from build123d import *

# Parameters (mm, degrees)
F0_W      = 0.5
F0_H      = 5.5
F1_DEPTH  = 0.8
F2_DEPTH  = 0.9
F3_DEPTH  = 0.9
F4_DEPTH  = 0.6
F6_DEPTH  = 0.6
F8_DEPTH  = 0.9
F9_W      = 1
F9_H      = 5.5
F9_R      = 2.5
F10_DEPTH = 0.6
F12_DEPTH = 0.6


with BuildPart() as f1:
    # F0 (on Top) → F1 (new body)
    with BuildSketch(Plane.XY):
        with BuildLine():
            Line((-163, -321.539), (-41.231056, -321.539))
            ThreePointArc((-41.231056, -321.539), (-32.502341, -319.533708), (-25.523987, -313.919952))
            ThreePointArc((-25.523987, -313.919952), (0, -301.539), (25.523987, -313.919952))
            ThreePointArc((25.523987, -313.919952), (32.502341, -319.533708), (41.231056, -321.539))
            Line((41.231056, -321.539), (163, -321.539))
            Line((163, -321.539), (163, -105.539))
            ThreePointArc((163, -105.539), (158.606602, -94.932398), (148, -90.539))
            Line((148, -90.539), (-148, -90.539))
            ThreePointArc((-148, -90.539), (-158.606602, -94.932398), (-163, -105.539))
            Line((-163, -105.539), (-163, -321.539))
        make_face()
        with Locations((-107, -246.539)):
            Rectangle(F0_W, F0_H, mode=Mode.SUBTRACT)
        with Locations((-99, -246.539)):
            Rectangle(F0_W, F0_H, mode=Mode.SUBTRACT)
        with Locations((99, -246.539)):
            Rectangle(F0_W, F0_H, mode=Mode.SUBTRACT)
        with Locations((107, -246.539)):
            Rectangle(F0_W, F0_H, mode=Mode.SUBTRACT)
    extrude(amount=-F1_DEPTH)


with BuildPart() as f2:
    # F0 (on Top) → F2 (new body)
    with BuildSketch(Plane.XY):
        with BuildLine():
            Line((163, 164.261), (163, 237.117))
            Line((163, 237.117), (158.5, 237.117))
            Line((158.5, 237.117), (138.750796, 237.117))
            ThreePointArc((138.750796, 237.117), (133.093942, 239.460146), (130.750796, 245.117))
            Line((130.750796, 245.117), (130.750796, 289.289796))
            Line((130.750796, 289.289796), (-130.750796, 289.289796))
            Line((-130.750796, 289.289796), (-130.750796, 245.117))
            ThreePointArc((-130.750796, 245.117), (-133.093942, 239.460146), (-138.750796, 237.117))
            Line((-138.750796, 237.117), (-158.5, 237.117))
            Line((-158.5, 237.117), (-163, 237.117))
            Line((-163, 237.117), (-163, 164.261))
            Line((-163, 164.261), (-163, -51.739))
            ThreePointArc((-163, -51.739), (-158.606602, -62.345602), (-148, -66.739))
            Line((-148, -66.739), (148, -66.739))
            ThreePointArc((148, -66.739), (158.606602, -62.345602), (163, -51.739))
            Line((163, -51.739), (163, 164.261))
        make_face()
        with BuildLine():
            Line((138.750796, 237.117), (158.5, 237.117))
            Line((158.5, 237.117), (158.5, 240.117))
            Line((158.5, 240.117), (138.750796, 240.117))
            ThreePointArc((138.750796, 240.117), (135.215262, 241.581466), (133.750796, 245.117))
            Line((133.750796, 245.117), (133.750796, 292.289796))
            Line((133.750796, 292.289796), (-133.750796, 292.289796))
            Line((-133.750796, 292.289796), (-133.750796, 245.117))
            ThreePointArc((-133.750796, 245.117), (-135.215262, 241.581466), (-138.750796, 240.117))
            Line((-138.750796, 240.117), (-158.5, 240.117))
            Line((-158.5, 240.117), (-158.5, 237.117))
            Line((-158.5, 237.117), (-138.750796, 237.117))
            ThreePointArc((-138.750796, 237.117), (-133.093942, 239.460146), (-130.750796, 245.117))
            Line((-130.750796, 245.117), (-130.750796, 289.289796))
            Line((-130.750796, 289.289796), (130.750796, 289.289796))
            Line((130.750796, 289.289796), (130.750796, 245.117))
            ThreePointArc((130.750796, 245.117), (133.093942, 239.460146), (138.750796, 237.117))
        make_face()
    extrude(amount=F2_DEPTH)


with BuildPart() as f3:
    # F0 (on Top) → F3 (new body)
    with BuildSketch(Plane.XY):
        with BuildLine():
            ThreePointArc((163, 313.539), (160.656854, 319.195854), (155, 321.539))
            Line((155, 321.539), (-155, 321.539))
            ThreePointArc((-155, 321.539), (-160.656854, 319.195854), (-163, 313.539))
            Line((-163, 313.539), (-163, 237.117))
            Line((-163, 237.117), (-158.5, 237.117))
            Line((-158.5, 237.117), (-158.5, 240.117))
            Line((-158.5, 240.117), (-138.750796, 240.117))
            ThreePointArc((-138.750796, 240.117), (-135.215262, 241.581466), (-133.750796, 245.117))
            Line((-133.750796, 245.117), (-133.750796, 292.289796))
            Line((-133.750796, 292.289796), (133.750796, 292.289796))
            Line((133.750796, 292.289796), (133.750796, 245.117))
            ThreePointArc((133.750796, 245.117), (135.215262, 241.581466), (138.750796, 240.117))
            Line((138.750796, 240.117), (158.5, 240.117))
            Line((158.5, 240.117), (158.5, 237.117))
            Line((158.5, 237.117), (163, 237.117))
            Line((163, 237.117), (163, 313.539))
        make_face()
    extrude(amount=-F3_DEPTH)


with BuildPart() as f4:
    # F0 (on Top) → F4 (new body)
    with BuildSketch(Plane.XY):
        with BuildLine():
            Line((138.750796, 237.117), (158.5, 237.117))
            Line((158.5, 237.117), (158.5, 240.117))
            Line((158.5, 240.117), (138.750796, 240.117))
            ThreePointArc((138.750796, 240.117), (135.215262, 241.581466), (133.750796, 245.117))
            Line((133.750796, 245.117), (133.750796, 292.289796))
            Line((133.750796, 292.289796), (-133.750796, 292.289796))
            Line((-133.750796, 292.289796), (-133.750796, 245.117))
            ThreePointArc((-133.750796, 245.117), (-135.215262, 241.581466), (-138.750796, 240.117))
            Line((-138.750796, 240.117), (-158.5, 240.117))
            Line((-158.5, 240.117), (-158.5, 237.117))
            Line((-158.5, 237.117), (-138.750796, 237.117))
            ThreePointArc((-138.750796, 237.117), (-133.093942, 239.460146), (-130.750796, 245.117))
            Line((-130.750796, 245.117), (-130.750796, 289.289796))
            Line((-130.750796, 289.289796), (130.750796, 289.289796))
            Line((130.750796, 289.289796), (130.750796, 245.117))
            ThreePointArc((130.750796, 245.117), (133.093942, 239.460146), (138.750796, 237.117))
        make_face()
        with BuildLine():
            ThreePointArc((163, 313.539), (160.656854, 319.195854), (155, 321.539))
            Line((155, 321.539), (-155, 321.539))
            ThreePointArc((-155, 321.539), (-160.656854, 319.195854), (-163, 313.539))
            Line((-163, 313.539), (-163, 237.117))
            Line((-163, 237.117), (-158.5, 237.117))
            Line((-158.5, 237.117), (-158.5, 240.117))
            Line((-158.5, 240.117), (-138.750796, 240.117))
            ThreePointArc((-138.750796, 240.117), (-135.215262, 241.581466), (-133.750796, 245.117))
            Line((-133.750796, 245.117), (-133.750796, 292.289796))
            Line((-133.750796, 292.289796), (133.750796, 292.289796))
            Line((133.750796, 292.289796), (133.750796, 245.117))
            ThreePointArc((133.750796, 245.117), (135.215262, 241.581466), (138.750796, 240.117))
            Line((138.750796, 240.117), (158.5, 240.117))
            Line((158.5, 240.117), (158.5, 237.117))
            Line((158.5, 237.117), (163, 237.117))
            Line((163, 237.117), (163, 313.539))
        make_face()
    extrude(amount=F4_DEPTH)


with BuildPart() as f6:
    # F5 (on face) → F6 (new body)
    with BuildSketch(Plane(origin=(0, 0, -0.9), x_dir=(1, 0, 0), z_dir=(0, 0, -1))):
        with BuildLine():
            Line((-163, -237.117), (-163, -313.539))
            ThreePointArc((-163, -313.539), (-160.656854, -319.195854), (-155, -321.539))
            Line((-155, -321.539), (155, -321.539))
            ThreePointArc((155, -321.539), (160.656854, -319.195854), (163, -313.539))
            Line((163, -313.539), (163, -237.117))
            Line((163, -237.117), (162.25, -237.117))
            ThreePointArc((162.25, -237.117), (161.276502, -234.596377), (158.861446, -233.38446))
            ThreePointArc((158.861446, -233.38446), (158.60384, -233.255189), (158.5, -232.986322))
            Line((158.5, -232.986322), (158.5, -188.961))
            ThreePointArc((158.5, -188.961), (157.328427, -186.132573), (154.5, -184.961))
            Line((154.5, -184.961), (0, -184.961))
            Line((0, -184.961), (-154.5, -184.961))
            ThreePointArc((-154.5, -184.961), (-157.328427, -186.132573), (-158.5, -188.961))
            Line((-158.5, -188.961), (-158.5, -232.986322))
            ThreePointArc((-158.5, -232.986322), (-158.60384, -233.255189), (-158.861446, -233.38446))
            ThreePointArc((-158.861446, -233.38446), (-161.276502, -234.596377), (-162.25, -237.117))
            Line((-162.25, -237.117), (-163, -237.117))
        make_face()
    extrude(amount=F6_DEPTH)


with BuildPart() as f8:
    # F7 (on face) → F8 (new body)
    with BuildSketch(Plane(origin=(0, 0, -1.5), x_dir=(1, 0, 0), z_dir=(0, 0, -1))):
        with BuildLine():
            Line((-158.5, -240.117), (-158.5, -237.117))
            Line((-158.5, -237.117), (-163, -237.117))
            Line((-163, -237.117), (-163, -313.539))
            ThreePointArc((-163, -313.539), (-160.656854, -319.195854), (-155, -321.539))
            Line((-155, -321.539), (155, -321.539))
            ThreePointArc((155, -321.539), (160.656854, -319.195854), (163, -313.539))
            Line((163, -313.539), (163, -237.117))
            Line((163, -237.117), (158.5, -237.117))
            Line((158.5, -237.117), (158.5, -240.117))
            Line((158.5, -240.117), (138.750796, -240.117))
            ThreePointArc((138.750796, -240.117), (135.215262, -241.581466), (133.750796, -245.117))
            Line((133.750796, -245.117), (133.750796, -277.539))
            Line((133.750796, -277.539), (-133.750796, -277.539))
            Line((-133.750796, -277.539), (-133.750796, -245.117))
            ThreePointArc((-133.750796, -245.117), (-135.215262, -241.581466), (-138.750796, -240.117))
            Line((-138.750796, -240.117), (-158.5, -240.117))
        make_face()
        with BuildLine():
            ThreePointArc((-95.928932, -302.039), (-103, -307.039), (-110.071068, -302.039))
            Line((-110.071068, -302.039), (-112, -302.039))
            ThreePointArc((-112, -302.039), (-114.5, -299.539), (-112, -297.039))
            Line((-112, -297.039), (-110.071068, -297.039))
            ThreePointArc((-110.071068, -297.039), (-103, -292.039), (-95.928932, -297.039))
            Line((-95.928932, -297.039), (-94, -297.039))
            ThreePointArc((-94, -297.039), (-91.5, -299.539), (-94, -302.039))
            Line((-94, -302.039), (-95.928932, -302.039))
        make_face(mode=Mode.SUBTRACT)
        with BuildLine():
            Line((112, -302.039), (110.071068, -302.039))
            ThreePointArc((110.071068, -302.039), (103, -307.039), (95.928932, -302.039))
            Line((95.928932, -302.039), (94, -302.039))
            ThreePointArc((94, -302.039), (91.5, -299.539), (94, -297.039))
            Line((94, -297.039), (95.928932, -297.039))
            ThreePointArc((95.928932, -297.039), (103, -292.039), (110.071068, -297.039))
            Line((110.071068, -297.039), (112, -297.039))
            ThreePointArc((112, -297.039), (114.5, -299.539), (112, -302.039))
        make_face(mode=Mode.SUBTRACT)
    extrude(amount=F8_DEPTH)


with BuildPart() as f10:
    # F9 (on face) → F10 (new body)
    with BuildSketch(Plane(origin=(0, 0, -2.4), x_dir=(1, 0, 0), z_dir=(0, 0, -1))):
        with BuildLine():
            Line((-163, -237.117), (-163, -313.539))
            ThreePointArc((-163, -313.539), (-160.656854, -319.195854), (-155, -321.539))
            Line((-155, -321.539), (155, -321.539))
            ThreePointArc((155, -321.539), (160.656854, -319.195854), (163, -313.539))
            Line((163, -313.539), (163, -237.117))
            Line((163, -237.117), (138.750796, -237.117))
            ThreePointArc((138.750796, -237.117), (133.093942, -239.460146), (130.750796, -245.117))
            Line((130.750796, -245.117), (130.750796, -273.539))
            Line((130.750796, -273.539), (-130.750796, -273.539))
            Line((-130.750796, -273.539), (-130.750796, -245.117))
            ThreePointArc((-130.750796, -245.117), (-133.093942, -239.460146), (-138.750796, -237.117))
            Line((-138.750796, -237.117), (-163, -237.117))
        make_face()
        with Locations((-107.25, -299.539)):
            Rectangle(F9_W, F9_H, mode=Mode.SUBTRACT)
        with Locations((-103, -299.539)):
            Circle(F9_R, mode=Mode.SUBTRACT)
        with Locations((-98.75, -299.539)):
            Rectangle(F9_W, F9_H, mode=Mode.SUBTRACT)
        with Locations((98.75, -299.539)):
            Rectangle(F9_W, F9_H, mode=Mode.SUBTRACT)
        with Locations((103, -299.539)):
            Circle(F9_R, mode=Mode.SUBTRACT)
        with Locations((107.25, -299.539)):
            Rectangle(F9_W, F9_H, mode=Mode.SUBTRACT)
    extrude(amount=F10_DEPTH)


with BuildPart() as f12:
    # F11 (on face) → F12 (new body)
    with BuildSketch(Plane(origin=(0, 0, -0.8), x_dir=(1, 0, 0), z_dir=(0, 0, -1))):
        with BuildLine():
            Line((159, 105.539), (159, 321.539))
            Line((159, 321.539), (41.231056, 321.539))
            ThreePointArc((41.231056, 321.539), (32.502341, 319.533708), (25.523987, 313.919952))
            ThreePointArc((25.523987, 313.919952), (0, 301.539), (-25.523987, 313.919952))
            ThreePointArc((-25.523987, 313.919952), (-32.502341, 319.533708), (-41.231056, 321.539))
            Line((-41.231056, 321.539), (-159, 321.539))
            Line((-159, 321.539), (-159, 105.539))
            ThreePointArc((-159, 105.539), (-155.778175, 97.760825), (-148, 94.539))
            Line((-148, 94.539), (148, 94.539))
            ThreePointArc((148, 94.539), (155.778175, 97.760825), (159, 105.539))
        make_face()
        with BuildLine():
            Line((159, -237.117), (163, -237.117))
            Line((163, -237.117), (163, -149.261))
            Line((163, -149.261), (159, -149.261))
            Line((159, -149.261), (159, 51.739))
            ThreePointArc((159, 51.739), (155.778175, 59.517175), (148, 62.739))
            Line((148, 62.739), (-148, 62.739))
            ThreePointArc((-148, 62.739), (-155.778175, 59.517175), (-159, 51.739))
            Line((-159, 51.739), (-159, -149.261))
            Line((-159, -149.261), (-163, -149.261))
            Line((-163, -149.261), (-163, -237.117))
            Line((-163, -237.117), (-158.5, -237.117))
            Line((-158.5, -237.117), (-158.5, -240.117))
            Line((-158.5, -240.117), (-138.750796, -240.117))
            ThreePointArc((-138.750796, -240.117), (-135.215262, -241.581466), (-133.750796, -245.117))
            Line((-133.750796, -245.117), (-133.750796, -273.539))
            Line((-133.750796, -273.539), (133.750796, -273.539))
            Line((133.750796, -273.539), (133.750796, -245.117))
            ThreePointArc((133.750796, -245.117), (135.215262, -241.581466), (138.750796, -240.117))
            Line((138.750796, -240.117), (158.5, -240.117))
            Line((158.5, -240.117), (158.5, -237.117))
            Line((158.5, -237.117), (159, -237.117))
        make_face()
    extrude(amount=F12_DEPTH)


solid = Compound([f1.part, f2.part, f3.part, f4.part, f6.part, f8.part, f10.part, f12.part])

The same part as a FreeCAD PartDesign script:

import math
import FreeCAD as App
import Part
import Sketcher
from FreeCAD import Vector


def add_polygon(sketch, points):
    """Adds a closed chain of lines whose ends are joined by coincident constraints."""
    first, n = sketch.GeometryCount, len(points)
    for a, b in zip(points, points[1:] + points[:1]):
        sketch.addGeometry(Part.LineSegment(App.Vector(*a, 0), App.Vector(*b, 0)), False)
    for i in range(n):
        sketch.addConstraint(Sketcher.Constraint("Coincident", first + i, 2, first + (i + 1) % n, 1))

doc = App.newDocument("Part")
body = doc.addObject("PartDesign::Body", "Body")

sketch1 = body.newObject("Sketcher::SketchObject", "Sketch")
sketch1.AttachmentSupport = (doc.getObject("XY_Plane"), [""])
sketch1.MapMode = "FlatFace"
sketch1.addGeometry(Part.LineSegment(Vector(-163, -321.5, 0), Vector(-41.2, -321.5, 0)), False)
sketch1.addGeometry(Part.ArcOfCircle(Part.Circle(Vector(-41.2, -301.5, 0), Vector(0, 0, 1), 20), math.radians(-90), math.radians(-38)), False)
sketch1.addGeometry(Part.ArcOfCircle(Part.Circle(Vector(0, -334, 0), Vector(0, 0, 1), 32.5), math.radians(38), math.radians(142)), False)
sketch1.addGeometry(Part.ArcOfCircle(Part.Circle(Vector(41.2, -301.5, 0), Vector(0, 0, 1), 20), math.radians(-142), math.radians(-90)), False)
sketch1.addGeometry(Part.LineSegment(Vector(41.2, -321.5, 0), Vector(163, -321.5, 0)), False)
sketch1.addGeometry(Part.LineSegment(Vector(163, -321.5, 0), Vector(163, -105.5, 0)), False)
sketch1.addGeometry(Part.ArcOfCircle(Part.Circle(Vector(148, -105.5, 0), Vector(0, 0, 1), 15), math.radians(0), math.radians(90)), False)
sketch1.addGeometry(Part.LineSegment(Vector(148, -90.5, 0), Vector(-148, -90.5, 0)), False)
sketch1.addGeometry(Part.ArcOfCircle(Part.Circle(Vector(-148, -105.5, 0), Vector(0, 0, 1), 15), math.radians(90), math.radians(180)), False)
sketch1.addGeometry(Part.LineSegment(Vector(-163, -105.5, 0), Vector(-163, -321.5, 0)), False)
add_polygon(sketch1, [(-106.8, -249.3), (-107.2, -249.3), (-107.2, -243.8), (-106.8, -243.8)])
add_polygon(sketch1, [(-98.8, -249.3), (-99.2, -249.3), (-99.2, -243.8), (-98.8, -243.8)])
add_polygon(sketch1, [(99.2, -249.3), (98.8, -249.3), (98.8, -243.8), (99.2, -243.8)])
add_polygon(sketch1, [(107.2, -249.3), (106.8, -249.3), (106.8, -243.8), (107.2, -243.8)])
sketch1.addConstraint([
    Sketcher.Constraint("Tangent", 0, 2, 1, 1),
    Sketcher.Constraint("Tangent", 1, 2, 2, 2),
    Sketcher.Constraint("Tangent", 2, 1, 3, 1),
    Sketcher.Constraint("Tangent", 3, 2, 4, 1),
    Sketcher.Constraint("Coincident", 4, 2, 5, 1),
    Sketcher.Constraint("Tangent", 5, 2, 6, 1),
    Sketcher.Constraint("Tangent", 6, 2, 7, 1),
    Sketcher.Constraint("Tangent", 7, 2, 8, 1),
    Sketcher.Constraint("Tangent", 8, 2, 9, 1),
    Sketcher.Constraint("Coincident", 9, 2, 0, 1),
    Sketcher.Constraint("Horizontal", 0),
    Sketcher.Constraint("Horizontal", 4),
    Sketcher.Constraint("Vertical", 5),
    Sketcher.Constraint("Horizontal", 7),
    Sketcher.Constraint("Vertical", 9),
    Sketcher.Constraint("Horizontal", 10),
    Sketcher.Constraint("Vertical", 11),
    Sketcher.Constraint("Horizontal", 12),
    Sketcher.Constraint("Vertical", 13),
    Sketcher.Constraint("Horizontal", 14),
    Sketcher.Constraint("Vertical", 15),
    Sketcher.Constraint("Horizontal", 16),
    Sketcher.Constraint("Vertical", 17),
    Sketcher.Constraint("Horizontal", 18),
    Sketcher.Constraint("Vertical", 19),
    Sketcher.Constraint("Horizontal", 20),
    Sketcher.Constraint("Vertical", 21),
    Sketcher.Constraint("Horizontal", 22),
    Sketcher.Constraint("Vertical", 23),
    Sketcher.Constraint("Horizontal", 24),
    Sketcher.Constraint("Vertical", 25),
    Sketcher.Constraint("Equal", 1, 3),
    Sketcher.Constraint("Equal", 6, 8),
    Sketcher.Constraint("Symmetric", 1, 3, 3, 3, -2),
    Sketcher.Constraint("Symmetric", 17, 2, 18, 2, -2),
    Sketcher.Constraint("Symmetric", 15, 2, 20, 2, -2),
    Sketcher.Constraint("Symmetric", 13, 2, 22, 2, -2),
    Sketcher.Constraint("Symmetric", 11, 2, 24, 2, -2),
    Sketcher.Constraint("Horizontal", 13, 2, 14, 2),
    Sketcher.Constraint("Horizontal", 12, 2, 15, 2),
    Sketcher.Constraint("Equal", 0, 4),
    Sketcher.Constraint("Equal", 12, 14),
    Sketcher.Constraint("Radius", 6, 14.999999),
    Sketcher.Constraint("Radius", 2, 32.5),
    Sketcher.Constraint("DistanceX", 7, 2, 7, 1, 296.0),
    Sketcher.Constraint("DistanceY", 5, 1, 5, 2, 216.0),
    Sketcher.Constraint("DistanceX", 10, 2, 10, 1, 0.5),
    Sketcher.Constraint("DistanceY", 11, 1, 11, 2, 5.5),
    Sketcher.Constraint("DistanceY", 3, 3, 6, 3, 195.999998),
    Sketcher.Constraint("DistanceX", 10, 2, 14, 2, 8.0),
    Sketcher.Constraint("DistanceY", 2, 3, 6, 3, 228.500001),
    Sketcher.Constraint("DistanceX", 10, 2, -1, 1, 107.25),
    Sketcher.Constraint("DistanceY", 9, 2, 10, 2, 72.25),
    Sketcher.Constraint("DistanceY", 2, 3, -1, 1, 334.039),
])
pad1 = body.newObject("PartDesign::Pad", "Pad")
pad1.Profile = sketch1
pad1.Length = 0.8
pad1.Reversed = True
body2 = doc.addObject("PartDesign::Body", "Body001")

sketch2 = body2.newObject("Sketcher::SketchObject", "Sketch001")
sketch2.AttachmentSupport = (doc.getObject("XY_Plane001"), [""])
sketch2.MapMode = "FlatFace"
sketch2.addGeometry([
    Part.LineSegment(Vector(163, 237.1, 0), Vector(158.5, 237.1, 0)),
    Part.LineSegment(Vector(158.5, 237.1, 0), Vector(158.5, 240.1, 0)),
    Part.LineSegment(Vector(158.5, 240.1, 0), Vector(138.8, 240.1, 0)),
    Part.ArcOfCircle(Part.Circle(Vector(138.8, 245.1, 0), Vector(0, 0, 1), 5), math.radians(180), math.radians(270)),
    Part.LineSegment(Vector(133.8, 245.1, 0), Vector(133.8, 292.3, 0)),
    Part.LineSegment(Vector(133.8, 292.3, 0), Vector(-133.8, 292.3, 0)),
    Part.LineSegment(Vector(-133.8, 292.3, 0), Vector(-133.8, 245.1, 0)),
    Part.ArcOfCircle(Part.Circle(Vector(-138.8, 245.1, 0), Vector(0, 0, 1), 5), math.radians(-90), math.radians(0)),
    Part.LineSegment(Vector(-138.8, 240.1, 0), Vector(-158.5, 240.1, 0)),
    Part.LineSegment(Vector(-158.5, 240.1, 0), Vector(-158.5, 237.1, 0)),
    Part.LineSegment(Vector(-158.5, 237.1, 0), Vector(-163, 237.1, 0)),
    Part.LineSegment(Vector(-163, 237.1, 0), Vector(-163, -51.7, 0)),
    Part.ArcOfCircle(Part.Circle(Vector(-148, -51.7, 0), Vector(0, 0, 1), 15), math.radians(180), math.radians(270)),
    Part.LineSegment(Vector(-148, -66.7, 0), Vector(148, -66.7, 0)),
    Part.ArcOfCircle(Part.Circle(Vector(148, -51.7, 0), Vector(0, 0, 1), 15), math.radians(-90), math.radians(0)),
    Part.LineSegment(Vector(163, -51.7, 0), Vector(163, 237.1, 0)),
], False)
sketch2.addConstraint([
    Sketcher.Constraint("Coincident", 0, 2, 1, 1),
    Sketcher.Constraint("Coincident", 1, 2, 2, 1),
    Sketcher.Constraint("Tangent", 2, 2, 3, 2),
    Sketcher.Constraint("Tangent", 3, 1, 4, 1),
    Sketcher.Constraint("Coincident", 4, 2, 5, 1),
    Sketcher.Constraint("Coincident", 5, 2, 6, 1),
    Sketcher.Constraint("Tangent", 6, 2, 7, 2),
    Sketcher.Constraint("Tangent", 7, 1, 8, 1),
    Sketcher.Constraint("Coincident", 8, 2, 9, 1),
    Sketcher.Constraint("Coincident", 9, 2, 10, 1),
    Sketcher.Constraint("Coincident", 10, 2, 11, 1),
    Sketcher.Constraint("Tangent", 11, 2, 12, 1),
    Sketcher.Constraint("Tangent", 12, 2, 13, 1),
    Sketcher.Constraint("Tangent", 13, 2, 14, 1),
    Sketcher.Constraint("Tangent", 14, 2, 15, 1),
    Sketcher.Constraint("Coincident", 15, 2, 0, 1),
    Sketcher.Constraint("Horizontal", 0),
    Sketcher.Constraint("Vertical", 1),
    Sketcher.Constraint("Horizontal", 2),
    Sketcher.Constraint("Vertical", 4),
    Sketcher.Constraint("Horizontal", 5),
    Sketcher.Constraint("Vertical", 6),
    Sketcher.Constraint("Horizontal", 8),
    Sketcher.Constraint("Vertical", 9),
    Sketcher.Constraint("Horizontal", 10),
    Sketcher.Constraint("Vertical", 11),
    Sketcher.Constraint("Horizontal", 13),
    Sketcher.Constraint("Vertical", 15),
    Sketcher.Constraint("Equal", 3, 7),
    Sketcher.Constraint("Equal", 12, 14),
    Sketcher.Constraint("Symmetric", 3, 3, 7, 3, -2),
    Sketcher.Constraint("Symmetric", 0, 2, 9, 2, -2),
    Sketcher.Constraint("Equal", 0, 10),
    Sketcher.Constraint("Radius", 3, 5.0),
    Sketcher.Constraint("Radius", 12, 14.999999),
    Sketcher.Constraint("DistanceX", 13, 1, 13, 2, 296.0),
    Sketcher.Constraint("DistanceY", 1, 1, 1, 2, 3.0),
    Sketcher.Constraint("DistanceX", 0, 2, 0, 1, 4.5),
    Sketcher.Constraint("DistanceY", 11, 2, 11, 1, 288.856),
    Sketcher.Constraint("DistanceY", -1, 1, 3, 3, 245.117),
    Sketcher.Constraint("DistanceX", 5, 2, 5, 1, 267.501592),
    Sketcher.Constraint("DistanceY", 4, 1, 4, 2, 47.172796),
])
pad2 = body2.newObject("PartDesign::Pad", "Pad001")
pad2.Profile = sketch2
pad2.Length = 0.9
body3 = doc.addObject("PartDesign::Body", "Body002")

sketch3 = body3.newObject("Sketcher::SketchObject", "Sketch002")
sketch3.AttachmentSupport = (doc.getObject("XY_Plane002"), [""])
sketch3.MapMode = "FlatFace"
sketch3.addGeometry([
    Part.ArcOfCircle(Part.Circle(Vector(155, 313.5, 0), Vector(0, 0, 1), 8), math.radians(0), math.radians(90)),
    Part.LineSegment(Vector(155, 321.5, 0), Vector(-155, 321.5, 0)),
    Part.ArcOfCircle(Part.Circle(Vector(-155, 313.5, 0), Vector(0, 0, 1), 8), math.radians(90), math.radians(180)),
    Part.LineSegment(Vector(-163, 313.5, 0), Vector(-163, 237.1, 0)),
    Part.LineSegment(Vector(-163, 237.1, 0), Vector(-158.5, 237.1, 0)),
    Part.LineSegment(Vector(-158.5, 237.1, 0), Vector(-158.5, 240.1, 0)),
    Part.LineSegment(Vector(-158.5, 240.1, 0), Vector(-138.8, 240.1, 0)),
    Part.ArcOfCircle(Part.Circle(Vector(-138.8, 245.1, 0), Vector(0, 0, 1), 5), math.radians(-90), math.radians(0)),
    Part.LineSegment(Vector(-133.8, 245.1, 0), Vector(-133.8, 292.3, 0)),
    Part.LineSegment(Vector(-133.8, 292.3, 0), Vector(133.8, 292.3, 0)),
    Part.LineSegment(Vector(133.8, 292.3, 0), Vector(133.8, 245.1, 0)),
    Part.ArcOfCircle(Part.Circle(Vector(138.8, 245.1, 0), Vector(0, 0, 1), 5), math.radians(180), math.radians(270)),
    Part.LineSegment(Vector(138.8, 240.1, 0), Vector(158.5, 240.1, 0)),
    Part.LineSegment(Vector(158.5, 240.1, 0), Vector(158.5, 237.1, 0)),
    Part.LineSegment(Vector(158.5, 237.1, 0), Vector(163, 237.1, 0)),
    Part.LineSegment(Vector(163, 237.1, 0), Vector(163, 313.5, 0)),
], False)
sketch3.addConstraint([
    Sketcher.Constraint("Tangent", 0, 2, 1, 1),
    Sketcher.Constraint("Tangent", 1, 2, 2, 1),
    Sketcher.Constraint("Tangent", 2, 2, 3, 1),
    Sketcher.Constraint("Coincident", 3, 2, 4, 1),
    Sketcher.Constraint("Coincident", 4, 2, 5, 1),
    Sketcher.Constraint("Coincident", 5, 2, 6, 1),
    Sketcher.Constraint("Tangent", 6, 2, 7, 1),
    Sketcher.Constraint("Tangent", 7, 2, 8, 1),
    Sketcher.Constraint("Coincident", 8, 2, 9, 1),
    Sketcher.Constraint("Coincident", 9, 2, 10, 1),
    Sketcher.Constraint("Tangent", 10, 2, 11, 1),
    Sketcher.Constraint("Tangent", 11, 2, 12, 1),
    Sketcher.Constraint("Coincident", 12, 2, 13, 1),
    Sketcher.Constraint("Coincident", 13, 2, 14, 1),
    Sketcher.Constraint("Coincident", 14, 2, 15, 1),
    Sketcher.Constraint("Tangent", 15, 2, 0, 1),
    Sketcher.Constraint("Horizontal", 1),
    Sketcher.Constraint("Vertical", 3),
    Sketcher.Constraint("Horizontal", 4),
    Sketcher.Constraint("Vertical", 5),
    Sketcher.Constraint("Horizontal", 6),
    Sketcher.Constraint("Vertical", 8),
    Sketcher.Constraint("Horizontal", 9),
    Sketcher.Constraint("Vertical", 10),
    Sketcher.Constraint("Horizontal", 12),
    Sketcher.Constraint("Vertical", 13),
    Sketcher.Constraint("Horizontal", 14),
    Sketcher.Constraint("Vertical", 15),
    Sketcher.Constraint("Equal", 0, 2),
    Sketcher.Constraint("Equal", 7, 11),
    Sketcher.Constraint("Symmetric", 7, 3, 11, 3, -2),
    Sketcher.Constraint("Symmetric", 4, 2, 13, 2, -2),
    Sketcher.Constraint("Equal", 4, 14),
    Sketcher.Constraint("Radius", 0, 8.000001),
    Sketcher.Constraint("Radius", 7, 5.0),
    Sketcher.Constraint("DistanceX", 1, 2, 1, 1, 310.0),
    Sketcher.Constraint("DistanceY", 5, 1, 5, 2, 3.0),
    Sketcher.Constraint("DistanceX", 4, 1, 4, 2, 4.5),
    Sketcher.Constraint("DistanceY", 3, 2, 3, 1, 76.422),
    Sketcher.Constraint("DistanceY", -1, 1, 0, 3, 313.538999),
    Sketcher.Constraint("DistanceX", 9, 1, 9, 2, 267.501592),
    Sketcher.Constraint("DistanceY", 8, 1, 8, 2, 47.172796),
])
pad3 = body3.newObject("PartDesign::Pad", "Pad002")
pad3.Profile = sketch3
pad3.Length = 0.9
pad3.Reversed = True
body4 = doc.addObject("PartDesign::Body", "Body003")

sketch4 = body4.newObject("Sketcher::SketchObject", "Sketch003")
sketch4.AttachmentSupport = (doc.getObject("XY_Plane003"), [""])
sketch4.MapMode = "FlatFace"
sketch4.addGeometry([
    Part.LineSegment(Vector(139, 237, 0), Vector(163, 237, 0)),
    Part.LineSegment(Vector(163, 237, 0), Vector(163, 314, 0)),
    Part.ArcOfCircle(Part.Circle(Vector(155, 314, 0), Vector(0, 0, 1), 8), math.radians(0), math.radians(90)),
    Part.LineSegment(Vector(155, 322, 0), Vector(-155, 322, 0)),
    Part.ArcOfCircle(Part.Circle(Vector(-155, 314, 0), Vector(0, 0, 1), 8), math.radians(90), math.radians(180)),
    Part.LineSegment(Vector(-163, 314, 0), Vector(-163, 237, 0)),
    Part.LineSegment(Vector(-163, 237, 0), Vector(-139, 237, 0)),
    Part.ArcOfCircle(Part.Circle(Vector(-139, 245, 0), Vector(0, 0, 1), 8), math.radians(-90), math.radians(0)),
    Part.LineSegment(Vector(-131, 245, 0), Vector(-131, 289, 0)),
    Part.LineSegment(Vector(-131, 289, 0), Vector(131, 289, 0)),
    Part.LineSegment(Vector(131, 289, 0), Vector(131, 245, 0)),
    Part.ArcOfCircle(Part.Circle(Vector(139, 245, 0), Vector(0, 0, 1), 8), math.radians(-180), math.radians(-90)),
], False)
sketch4.addConstraint([
    Sketcher.Constraint("Coincident", 0, 2, 1, 1),
    Sketcher.Constraint("Tangent", 1, 2, 2, 1),
    Sketcher.Constraint("Tangent", 2, 2, 3, 1),
    Sketcher.Constraint("Tangent", 3, 2, 4, 1),
    Sketcher.Constraint("Tangent", 4, 2, 5, 1),
    Sketcher.Constraint("Coincident", 5, 2, 6, 1),
    Sketcher.Constraint("Tangent", 6, 2, 7, 1),
    Sketcher.Constraint("Tangent", 7, 2, 8, 1),
    Sketcher.Constraint("Coincident", 8, 2, 9, 1),
    Sketcher.Constraint("Coincident", 9, 2, 10, 1),
    Sketcher.Constraint("Tangent", 10, 2, 11, 1),
    Sketcher.Constraint("Tangent", 11, 2, 0, 1),
    Sketcher.Constraint("Horizontal", 0),
    Sketcher.Constraint("Vertical", 1),
    Sketcher.Constraint("Horizontal", 3),
    Sketcher.Constraint("Vertical", 5),
    Sketcher.Constraint("Horizontal", 6),
    Sketcher.Constraint("Vertical", 8),
    Sketcher.Constraint("Horizontal", 9),
    Sketcher.Constraint("Vertical", 10),
    Sketcher.Constraint("Equal", 2, 4),
    Sketcher.Constraint("Equal", 4, 7),
    Sketcher.Constraint("Equal", 7, 11),
    Sketcher.Constraint("Symmetric", 7, 3, 11, 3, -2),
    Sketcher.Constraint("Equal", 0, 6),
    Sketcher.Constraint("Radius", 2, 8.000001),
    Sketcher.Constraint("DistanceX", 3, 2, 3, 1, 310.0),
    Sketcher.Constraint("DistanceY", 1, 1, 1, 2, 76.422),
    Sketcher.Constraint("DistanceY", -1, 1, 2, 3, 313.538999),
    Sketcher.Constraint("DistanceX", 9, 1, 9, 2, 261.501592),
    Sketcher.Constraint("DistanceY", 8, 1, 8, 2, 44.172796),
])
pad4 = body4.newObject("PartDesign::Pad", "Pad003")
pad4.Profile = sketch4
pad4.Length = 0.6
body5 = doc.addObject("PartDesign::Body", "Body004")

sketch5 = body5.newObject("Sketcher::SketchObject", "Sketch004")
sketch5.AttachmentSupport = (doc.getObject("XY_Plane004"), [""])
sketch5.MapMode = "FlatFace"
sketch5.AttachmentOffset = App.Placement(Vector(0, 0, -0.9), App.Rotation())
sketch5.addGeometry([
    Part.LineSegment(Vector(-163, 237.12, 0), Vector(-163, 313.54, 0)),
    Part.ArcOfCircle(Part.Circle(Vector(-155, 313.54, 0), Vector(0, 0, 1), 8), math.radians(90), math.radians(180)),
    Part.LineSegment(Vector(-155, 321.54, 0), Vector(155, 321.54, 0)),
    Part.ArcOfCircle(Part.Circle(Vector(155, 313.54, 0), Vector(0, 0, 1), 8), math.radians(0), math.radians(90)),
    Part.LineSegment(Vector(163, 313.54, 0), Vector(163, 237.12, 0)),
    Part.LineSegment(Vector(163, 237.12, 0), Vector(162.25, 237.12, 0)),
    Part.ArcOfCircle(Part.Circle(Vector(158.5, 237.12, 0), Vector(0, 0, 1), 3.75), math.radians(-84), math.radians(0)),
    Part.ArcOfCircle(Part.Circle(Vector(158.9, 232.99, 0), Vector(0, 0, 1), 0.4), math.radians(96), math.radians(180)),
    Part.LineSegment(Vector(158.5, 232.99, 0), Vector(158.5, 188.96, 0)),
    Part.ArcOfCircle(Part.Circle(Vector(154.5, 188.96, 0), Vector(0, 0, 1), 4), math.radians(-90), math.radians(0)),
    Part.LineSegment(Vector(154.5, 184.96, 0), Vector(-154.5, 184.96, 0)),
    Part.ArcOfCircle(Part.Circle(Vector(-154.5, 188.96, 0), Vector(0, 0, 1), 4), math.radians(-180), math.radians(-90)),
    Part.LineSegment(Vector(-158.5, 188.96, 0), Vector(-158.5, 232.99, 0)),
    Part.ArcOfCircle(Part.Circle(Vector(-158.9, 232.99, 0), Vector(0, 0, 1), 0.4), math.radians(0), math.radians(84)),
    Part.ArcOfCircle(Part.Circle(Vector(-158.5, 237.12, 0), Vector(0, 0, 1), 3.75), math.radians(180), math.radians(264)),
    Part.LineSegment(Vector(-162.25, 237.12, 0), Vector(-163, 237.12, 0)),
], False)
sketch5.addConstraint([
    Sketcher.Constraint("Tangent", 0, 2, 1, 2),
    Sketcher.Constraint("Tangent", 1, 1, 2, 1),
    Sketcher.Constraint("Tangent", 2, 2, 3, 2),
    Sketcher.Constraint("Tangent", 3, 1, 4, 1),
    Sketcher.Constraint("Coincident", 4, 2, 5, 1),
    Sketcher.Constraint("Coincident", 5, 2, 6, 2),
    Sketcher.Constraint("Tangent", 6, 1, 7, 1),
    Sketcher.Constraint("Tangent", 7, 2, 8, 1),
    Sketcher.Constraint("Tangent", 8, 2, 9, 2),
    Sketcher.Constraint("Tangent", 9, 1, 10, 1),
    Sketcher.Constraint("Tangent", 10, 2, 11, 2),
    Sketcher.Constraint("Tangent", 11, 1, 12, 1),
    Sketcher.Constraint("Tangent", 12, 2, 13, 1),
    Sketcher.Constraint("Tangent", 13, 2, 14, 2),
    Sketcher.Constraint("Coincident", 14, 1, 15, 1),
    Sketcher.Constraint("Coincident", 15, 2, 0, 1),
    Sketcher.Constraint("Vertical", 0),
    Sketcher.Constraint("Horizontal", 2),
    Sketcher.Constraint("Vertical", 4),
    Sketcher.Constraint("Horizontal", 5),
    Sketcher.Constraint("Vertical", 8),
    Sketcher.Constraint("Horizontal", 10),
    Sketcher.Constraint("Vertical", 12),
    Sketcher.Constraint("Horizontal", 15),
    Sketcher.Constraint("Equal", 1, 3),
    Sketcher.Constraint("Equal", 9, 11),
    Sketcher.Constraint("Equal", 7, 13),
    Sketcher.Constraint("Equal", 6, 14),
    Sketcher.Constraint("Symmetric", 7, 3, 13, 3, -2),
    Sketcher.Constraint("Symmetric", 5, 2, 14, 1, -2),
    Sketcher.Constraint("Horizontal", 14, 3, 4, 2),
    Sketcher.Constraint("Vertical", 6, 3, 7, 2),
    Sketcher.Constraint("Equal", 5, 15),
    Sketcher.Constraint("Radius", 1, 8.000001),
    Sketcher.Constraint("Radius", 9, 4.0),
    Sketcher.Constraint("Radius", 7, 0.4),
    Sketcher.Constraint("DistanceX", 2, 1, 2, 2, 310.0),
    Sketcher.Constraint("DistanceX", 10, 2, 10, 1, 309.0),
    Sketcher.Constraint("Radius", 6, 3.749998),
    Sketcher.Constraint("DistanceY", 0, 1, 0, 2, 76.422),
    Sketcher.Constraint("DistanceY", -1, 1, 1, 3, 313.538999),
    Sketcher.Constraint("DistanceY", -1, 1, 9, 3, 188.961),
])
pad5 = body5.newObject("PartDesign::Pad", "Pad004")
pad5.Profile = sketch5
pad5.Length = 0.6
pad5.Reversed = True
body6 = doc.addObject("PartDesign::Body", "Body005")

sketch6 = body6.newObject("Sketcher::SketchObject", "Sketch005")
sketch6.AttachmentSupport = (doc.getObject("XY_Plane005"), [""])
sketch6.MapMode = "FlatFace"
sketch6.AttachmentOffset = App.Placement(Vector(0, 0, -1.5), App.Rotation())
sketch6.addGeometry([
    Part.LineSegment(Vector(-158.5, 240.1, 0), Vector(-158.5, 237.1, 0)),
    Part.LineSegment(Vector(-158.5, 237.1, 0), Vector(-163, 237.1, 0)),
    Part.LineSegment(Vector(-163, 237.1, 0), Vector(-163, 313.5, 0)),
    Part.ArcOfCircle(Part.Circle(Vector(-155, 313.5, 0), Vector(0, 0, 1), 8), math.radians(90), math.radians(180)),
    Part.LineSegment(Vector(-155, 321.5, 0), Vector(155, 321.5, 0)),
    Part.ArcOfCircle(Part.Circle(Vector(155, 313.5, 0), Vector(0, 0, 1), 8), math.radians(0), math.radians(90)),
    Part.LineSegment(Vector(163, 313.5, 0), Vector(163, 237.1, 0)),
    Part.LineSegment(Vector(163, 237.1, 0), Vector(158.5, 237.1, 0)),
    Part.LineSegment(Vector(158.5, 237.1, 0), Vector(158.5, 240.1, 0)),
    Part.LineSegment(Vector(158.5, 240.1, 0), Vector(138.8, 240.1, 0)),
    Part.ArcOfCircle(Part.Circle(Vector(138.8, 245.1, 0), Vector(0, 0, 1), 5), math.radians(180), math.radians(270)),
    Part.LineSegment(Vector(133.8, 245.1, 0), Vector(133.8, 277.5, 0)),
    Part.LineSegment(Vector(133.8, 277.5, 0), Vector(-133.8, 277.5, 0)),
    Part.LineSegment(Vector(-133.8, 277.5, 0), Vector(-133.8, 245.1, 0)),
    Part.ArcOfCircle(Part.Circle(Vector(-138.8, 245.1, 0), Vector(0, 0, 1), 5), math.radians(-90), math.radians(0)),
    Part.LineSegment(Vector(-138.8, 240.1, 0), Vector(-158.5, 240.1, 0)),
    Part.LineSegment(Vector(-94, 302, 0), Vector(-95.9, 302, 0)),
    Part.ArcOfCircle(Part.Circle(Vector(-103, 299.5, 0), Vector(0, 0, 1), 7.5), math.radians(19), math.radians(161)),
    Part.LineSegment(Vector(-110.1, 302, 0), Vector(-112, 302, 0)),
    Part.ArcOfCircle(Part.Circle(Vector(-112, 299.5, 0), Vector(0, 0, 1), 2.5), math.radians(90), math.radians(270)),
    Part.LineSegment(Vector(-112, 297, 0), Vector(-110.1, 297, 0)),
    Part.ArcOfCircle(Part.Circle(Vector(-103, 299.5, 0), Vector(0, 0, 1), 7.5), math.radians(-161), math.radians(-19)),
    Part.LineSegment(Vector(-95.9, 297, 0), Vector(-94, 297, 0)),
    Part.ArcOfCircle(Part.Circle(Vector(-94, 299.5, 0), Vector(0, 0, 1), 2.5), math.radians(-90), math.radians(90)),
    Part.ArcOfCircle(Part.Circle(Vector(112, 299.5, 0), Vector(0, 0, 1), 2.5), math.radians(-90), math.radians(90)),
    Part.LineSegment(Vector(112, 302, 0), Vector(110.1, 302, 0)),
    Part.ArcOfCircle(Part.Circle(Vector(103, 299.5, 0), Vector(0, 0, 1), 7.5), math.radians(19), math.radians(161)),
    Part.LineSegment(Vector(95.9, 302, 0), Vector(94, 302, 0)),
    Part.ArcOfCircle(Part.Circle(Vector(94, 299.5, 0), Vector(0, 0, 1), 2.5), math.radians(90), math.radians(270)),
    Part.LineSegment(Vector(94, 297, 0), Vector(95.9, 297, 0)),
    Part.ArcOfCircle(Part.Circle(Vector(103, 299.5, 0), Vector(0, 0, 1), 7.5), math.radians(-161), math.radians(-19)),
    Part.LineSegment(Vector(110.1, 297, 0), Vector(112, 297, 0)),
], False)
sketch6.addConstraint([
    Sketcher.Constraint("Coincident", 0, 2, 1, 1),
    Sketcher.Constraint("Coincident", 1, 2, 2, 1),
    Sketcher.Constraint("Tangent", 2, 2, 3, 2),
    Sketcher.Constraint("Tangent", 3, 1, 4, 1),
    Sketcher.Constraint("Tangent", 4, 2, 5, 2),
    Sketcher.Constraint("Tangent", 5, 1, 6, 1),
    Sketcher.Constraint("Coincident", 6, 2, 7, 1),
    Sketcher.Constraint("Coincident", 7, 2, 8, 1),
    Sketcher.Constraint("Coincident", 8, 2, 9, 1),
    Sketcher.Constraint("Tangent", 9, 2, 10, 2),
    Sketcher.Constraint("Tangent", 10, 1, 11, 1),
    Sketcher.Constraint("Coincident", 11, 2, 12, 1),
    Sketcher.Constraint("Coincident", 12, 2, 13, 1),
    Sketcher.Constraint("Tangent", 13, 2, 14, 2),
    Sketcher.Constraint("Tangent", 14, 1, 15, 1),
    Sketcher.Constraint("Coincident", 15, 2, 0, 1),
    Sketcher.Constraint("Coincident", 16, 2, 17, 1),
    Sketcher.Constraint("Coincident", 17, 2, 18, 1),
    Sketcher.Constraint("Tangent", 18, 2, 19, 1),
    Sketcher.Constraint("Tangent", 19, 2, 20, 1),
    Sketcher.Constraint("Coincident", 20, 2, 21, 1),
    Sketcher.Constraint("Coincident", 21, 2, 22, 1),
    Sketcher.Constraint("Tangent", 22, 2, 23, 1),
    Sketcher.Constraint("Tangent", 23, 2, 16, 1),
    Sketcher.Constraint("Tangent", 24, 2, 25, 1),
    Sketcher.Constraint("Coincident", 25, 2, 26, 1),
    Sketcher.Constraint("Coincident", 26, 2, 27, 1),
    Sketcher.Constraint("Tangent", 27, 2, 28, 1),
    Sketcher.Constraint("Tangent", 28, 2, 29, 1),
    Sketcher.Constraint("Coincident", 29, 2, 30, 1),
    Sketcher.Constraint("Coincident", 30, 2, 31, 1),
    Sketcher.Constraint("Tangent", 31, 2, 24, 1),
    Sketcher.Constraint("Vertical", 0),
    Sketcher.Constraint("Horizontal", 1),
    Sketcher.Constraint("Vertical", 2),
    Sketcher.Constraint("Horizontal", 4),
    Sketcher.Constraint("Vertical", 6),
    Sketcher.Constraint("Horizontal", 7),
    Sketcher.Constraint("Vertical", 8),
    Sketcher.Constraint("Horizontal", 9),
    Sketcher.Constraint("Vertical", 11),
    Sketcher.Constraint("Horizontal", 12),
    Sketcher.Constraint("Vertical", 13),
    Sketcher.Constraint("Horizontal", 15),
    Sketcher.Constraint("Horizontal", 16),
    Sketcher.Constraint("Horizontal", 18),
    Sketcher.Constraint("Horizontal", 20),
    Sketcher.Constraint("Horizontal", 22),
    Sketcher.Constraint("Horizontal", 25),
    Sketcher.Constraint("Horizontal", 27),
    Sketcher.Constraint("Horizontal", 29),
    Sketcher.Constraint("Horizontal", 31),
    Sketcher.Constraint("Coincident", 21, 3, 17, 3),
    Sketcher.Constraint("Coincident", 30, 3, 26, 3),
    Sketcher.Constraint("Equal", 3, 5),
    Sketcher.Constraint("Equal", 10, 14),
    Sketcher.Constraint("Equal", 17, 21),
    Sketcher.Constraint("Equal", 19, 23),
    Sketcher.Constraint("Equal", 23, 24),
    Sketcher.Constraint("Equal", 21, 26),
    Sketcher.Constraint("Equal", 24, 28),
    Sketcher.Constraint("Equal", 26, 30),
    Sketcher.Constraint("Symmetric", 10, 3, 14, 3, -2),
    Sketcher.Constraint("Symmetric", 19, 3, 24, 3, -2),
    Sketcher.Constraint("Symmetric", 17, 3, 26, 3, -2),
    Sketcher.Constraint("Symmetric", 23, 3, 28, 3, -2),
    Sketcher.Constraint("Symmetric", 1, 2, 6, 2, -2),
    Sketcher.Constraint("Horizontal", 17, 3, 19, 3),
    Sketcher.Constraint("Horizontal", 21, 3, 23, 3),
    Sketcher.Constraint("Equal", 1, 7),
    Sketcher.Constraint("Equal", 16, 18),
    Sketcher.Constraint("Radius", 3, 8.000001),
    Sketcher.Constraint("Radius", 10, 5.0),
    Sketcher.Constraint("Radius", 17, 7.5),
    Sketcher.Constraint("Radius", 19, 2.5),
    Sketcher.Constraint("DistanceX", 4, 1, 4, 2, 310.0),
    Sketcher.Constraint("DistanceY", 0, 2, 0, 1, 3.0),
    Sketcher.Constraint("DistanceX", 1, 2, 1, 1, 4.5),
    Sketcher.Constraint("DistanceX", 17, 3, -1, 1, 103.0),
    Sketcher.Constraint("DistanceX", 19, 3, -1, 1, 112.0),
    Sketcher.Constraint("DistanceY", 17, 3, 3, 3, 13.999999),
    Sketcher.Constraint("DistanceY", 11, 2, 24, 3, 22.0),
    Sketcher.Constraint("DistanceY", 2, 1, 2, 2, 76.422),
    Sketcher.Constraint("DistanceY", -1, 1, 3, 3, 313.538999),
    Sketcher.Constraint("DistanceX", 12, 2, 12, 1, 267.501592),
])
pad6 = body6.newObject("PartDesign::Pad", "Pad005")
pad6.Profile = sketch6
pad6.Length = 0.9
pad6.Reversed = True
body7 = doc.addObject("PartDesign::Body", "Body006")

sketch7 = body7.newObject("Sketcher::SketchObject", "Sketch006")
sketch7.AttachmentSupport = (doc.getObject("XY_Plane006"), [""])
sketch7.MapMode = "FlatFace"
sketch7.AttachmentOffset = App.Placement(Vector(0, 0, -2.4), App.Rotation())
sketch7.addGeometry(Part.LineSegment(Vector(-163, 237.1, 0), Vector(-163, 313.5, 0)), False)
sketch7.addGeometry(Part.ArcOfCircle(Part.Circle(Vector(-155, 313.5, 0), Vector(0, 0, 1), 8), math.radians(90), math.radians(180)), False)
sketch7.addGeometry(Part.LineSegment(Vector(-155, 321.5, 0), Vector(155, 321.5, 0)), False)
sketch7.addGeometry(Part.ArcOfCircle(Part.Circle(Vector(155, 313.5, 0), Vector(0, 0, 1), 8), math.radians(0), math.radians(90)), False)
sketch7.addGeometry(Part.LineSegment(Vector(163, 313.5, 0), Vector(163, 237.1, 0)), False)
sketch7.addGeometry(Part.LineSegment(Vector(163, 237.1, 0), Vector(138.8, 237.1, 0)), False)
sketch7.addGeometry(Part.ArcOfCircle(Part.Circle(Vector(138.8, 245.1, 0), Vector(0, 0, 1), 8), math.radians(-180), math.radians(-90)), False)
sketch7.addGeometry(Part.LineSegment(Vector(130.8, 245.1, 0), Vector(130.8, 273.5, 0)), False)
sketch7.addGeometry(Part.LineSegment(Vector(130.8, 273.5, 0), Vector(-130.8, 273.5, 0)), False)
sketch7.addGeometry(Part.LineSegment(Vector(-130.8, 273.5, 0), Vector(-130.8, 245.1, 0)), False)
sketch7.addGeometry(Part.ArcOfCircle(Part.Circle(Vector(-138.8, 245.1, 0), Vector(0, 0, 1), 8), math.radians(-90), math.radians(0)), False)
sketch7.addGeometry(Part.LineSegment(Vector(-138.8, 237.1, 0), Vector(-163, 237.1, 0)), False)
add_polygon(sketch7, [(-106.8, 302.3), (-107.8, 302.3), (-107.8, 296.8), (-106.8, 296.8)])
sketch7.addGeometry(Part.Circle(Vector(-103, 299.5, 0), Vector(0, 0, 1), 2.5), False)
add_polygon(sketch7, [(-98.2, 302.3), (-99.2, 302.3), (-99.2, 296.8), (-98.2, 296.8)])
add_polygon(sketch7, [(99.2, 302.3), (98.2, 302.3), (98.2, 296.8), (99.2, 296.8)])
sketch7.addGeometry(Part.Circle(Vector(103, 299.5, 0), Vector(0, 0, 1), 2.5), False)
add_polygon(sketch7, [(107.8, 302.3), (106.8, 302.3), (106.8, 296.8), (107.8, 296.8)])
sketch7.addConstraint([
    Sketcher.Constraint("Tangent", 0, 2, 1, 2),
    Sketcher.Constraint("Tangent", 1, 1, 2, 1),
    Sketcher.Constraint("Tangent", 2, 2, 3, 2),
    Sketcher.Constraint("Tangent", 3, 1, 4, 1),
    Sketcher.Constraint("Coincident", 4, 2, 5, 1),
    Sketcher.Constraint("Tangent", 5, 2, 6, 2),
    Sketcher.Constraint("Tangent", 6, 1, 7, 1),
    Sketcher.Constraint("Coincident", 7, 2, 8, 1),
    Sketcher.Constraint("Coincident", 8, 2, 9, 1),
    Sketcher.Constraint("Tangent", 9, 2, 10, 2),
    Sketcher.Constraint("Tangent", 10, 1, 11, 1),
    Sketcher.Constraint("Coincident", 11, 2, 0, 1),
    Sketcher.Constraint("Vertical", 0),
    Sketcher.Constraint("Horizontal", 2),
    Sketcher.Constraint("Vertical", 4),
    Sketcher.Constraint("Horizontal", 5),
    Sketcher.Constraint("Vertical", 7),
    Sketcher.Constraint("Horizontal", 8),
    Sketcher.Constraint("Vertical", 9),
    Sketcher.Constraint("Horizontal", 11),
    Sketcher.Constraint("Horizontal", 12),
    Sketcher.Constraint("Vertical", 13),
    Sketcher.Constraint("Horizontal", 14),
    Sketcher.Constraint("Vertical", 15),
    Sketcher.Constraint("Horizontal", 17),
    Sketcher.Constraint("Vertical", 18),
    Sketcher.Constraint("Horizontal", 19),
    Sketcher.Constraint("Vertical", 20),
    Sketcher.Constraint("Horizontal", 21),
    Sketcher.Constraint("Vertical", 22),
    Sketcher.Constraint("Horizontal", 23),
    Sketcher.Constraint("Vertical", 24),
    Sketcher.Constraint("Horizontal", 26),
    Sketcher.Constraint("Vertical", 27),
    Sketcher.Constraint("Horizontal", 28),
    Sketcher.Constraint("Vertical", 29),
    Sketcher.Constraint("Equal", 1, 3),
    Sketcher.Constraint("Equal", 3, 6),
    Sketcher.Constraint("Equal", 6, 10),
    Sketcher.Constraint("Equal", 16, 25),
    Sketcher.Constraint("Symmetric", 6, 3, 10, 3, -2),
    Sketcher.Constraint("Symmetric", 16, 3, 25, 3, -2),
    Sketcher.Constraint("Symmetric", 20, 2, 21, 2, -2),
    Sketcher.Constraint("Symmetric", 18, 2, 23, 2, -2),
    Sketcher.Constraint("Symmetric", 15, 2, 26, 2, -2),
    Sketcher.Constraint("Symmetric", 13, 2, 28, 2, -2),
    Sketcher.Constraint("Horizontal", 15, 2, 17, 2),
    Sketcher.Constraint("Horizontal", 14, 2, 18, 2),
    Sketcher.Constraint("Equal", 5, 11),
    Sketcher.Constraint("Equal", 14, 17),
    Sketcher.Constraint("Diameter", 16, 5.0),
    Sketcher.Constraint("Radius", 1, 8.000001),
    Sketcher.Constraint("DistanceX", 2, 1, 2, 2, 310.0),
    Sketcher.Constraint("DistanceX", 12, 2, 12, 1, 1.0),
    Sketcher.Constraint("DistanceY", 13, 2, 13, 1, 5.5),
    Sketcher.Constraint("DistanceX", 16, 3, -1, 1, 103.0),
    Sketcher.Constraint("DistanceY", 16, 3, 1, 3, 13.999999),
    Sketcher.Constraint("DistanceY", 7, 2, 25, 3, 26.0),
    Sketcher.Constraint("DistanceX", 15, 2, 17, 2, 7.5),
    Sketcher.Constraint("DistanceY", 0, 1, 0, 2, 76.422),
    Sketcher.Constraint("DistanceX", 12, 2, -1, 1, 107.75),
    Sketcher.Constraint("DistanceY", 16, 3, 12, 2, 2.75),
    Sketcher.Constraint("DistanceY", -1, 1, 1, 3, 313.538999),
    Sketcher.Constraint("DistanceX", 8, 2, 8, 1, 261.501592),
])
pad7 = body7.newObject("PartDesign::Pad", "Pad006")
pad7.Profile = sketch7
pad7.Length = 0.6
pad7.Reversed = True
body8 = doc.addObject("PartDesign::Body", "Body007")
body8.AllowCompound = True

sketch8 = body8.newObject("Sketcher::SketchObject", "Sketch007")
sketch8.AttachmentSupport = (doc.getObject("XY_Plane007"), [""])
sketch8.MapMode = "FlatFace"
sketch8.AttachmentOffset = App.Placement(Vector(0, 0, -0.8), App.Rotation())
sketch8.addGeometry([
    Part.LineSegment(Vector(159, -105.5, 0), Vector(159, -321.5, 0)),
    Part.LineSegment(Vector(159, -321.5, 0), Vector(41.2, -321.5, 0)),
    Part.ArcOfCircle(Part.Circle(Vector(41.2, -301.5, 0), Vector(0, 0, 1), 20), math.radians(-142), math.radians(-90)),
    Part.ArcOfCircle(Part.Circle(Vector(0, -334, 0), Vector(0, 0, 1), 32.5), math.radians(38), math.radians(142)),
    Part.ArcOfCircle(Part.Circle(Vector(-41.2, -301.5, 0), Vector(0, 0, 1), 20), math.radians(-90), math.radians(-38)),
    Part.LineSegment(Vector(-41.2, -321.5, 0), Vector(-159, -321.5, 0)),
    Part.LineSegment(Vector(-159, -321.5, 0), Vector(-159, -105.5, 0)),
    Part.ArcOfCircle(Part.Circle(Vector(-148, -105.5, 0), Vector(0, 0, 1), 11), math.radians(90), math.radians(180)),
    Part.LineSegment(Vector(-148, -94.5, 0), Vector(148, -94.5, 0)),
    Part.ArcOfCircle(Part.Circle(Vector(148, -105.5, 0), Vector(0, 0, 1), 11), math.radians(0), math.radians(90)),
    Part.LineSegment(Vector(163, 237.1, 0), Vector(163, 149.3, 0)),
    Part.LineSegment(Vector(163, 149.3, 0), Vector(159, 149.3, 0)),
    Part.LineSegment(Vector(159, 149.3, 0), Vector(159, -51.7, 0)),
    Part.ArcOfCircle(Part.Circle(Vector(148, -51.7, 0), Vector(0, 0, 1), 11), math.radians(-90), math.radians(0)),
    Part.LineSegment(Vector(148, -62.7, 0), Vector(-148, -62.7, 0)),
    Part.ArcOfCircle(Part.Circle(Vector(-148, -51.7, 0), Vector(0, 0, 1), 11), math.radians(180), math.radians(270)),
    Part.LineSegment(Vector(-159, -51.7, 0), Vector(-159, 149.3, 0)),
    Part.LineSegment(Vector(-159, 149.3, 0), Vector(-163, 149.3, 0)),
    Part.LineSegment(Vector(-163, 149.3, 0), Vector(-163, 237.1, 0)),
    Part.LineSegment(Vector(-163, 237.1, 0), Vector(-158.5, 237.1, 0)),
    Part.LineSegment(Vector(-158.5, 237.1, 0), Vector(-158.5, 240.1, 0)),
    Part.LineSegment(Vector(-158.5, 240.1, 0), Vector(-138.8, 240.1, 0)),
    Part.ArcOfCircle(Part.Circle(Vector(-138.8, 245.1, 0), Vector(0, 0, 1), 5), math.radians(-90), math.radians(0)),
    Part.LineSegment(Vector(-133.8, 245.1, 0), Vector(-133.8, 273.5, 0)),
    Part.LineSegment(Vector(-133.8, 273.5, 0), Vector(133.8, 273.5, 0)),
    Part.LineSegment(Vector(133.8, 273.5, 0), Vector(133.8, 245.1, 0)),
    Part.ArcOfCircle(Part.Circle(Vector(138.8, 245.1, 0), Vector(0, 0, 1), 5), math.radians(180), math.radians(270)),
    Part.LineSegment(Vector(138.8, 240.1, 0), Vector(158.5, 240.1, 0)),
    Part.LineSegment(Vector(158.5, 240.1, 0), Vector(158.5, 237.1, 0)),
    Part.LineSegment(Vector(158.5, 237.1, 0), Vector(163, 237.1, 0)),
], False)
sketch8.addConstraint([
    Sketcher.Constraint("Coincident", 0, 2, 1, 1),
    Sketcher.Constraint("Tangent", 1, 2, 2, 2),
    Sketcher.Constraint("Tangent", 2, 1, 3, 1),
    Sketcher.Constraint("Tangent", 3, 2, 4, 2),
    Sketcher.Constraint("Tangent", 4, 1, 5, 1),
    Sketcher.Constraint("Coincident", 5, 2, 6, 1),
    Sketcher.Constraint("Tangent", 6, 2, 7, 2),
    Sketcher.Constraint("Tangent", 7, 1, 8, 1),
    Sketcher.Constraint("Tangent", 8, 2, 9, 2),
    Sketcher.Constraint("Tangent", 9, 1, 0, 1),
    Sketcher.Constraint("Coincident", 10, 2, 11, 1),
    Sketcher.Constraint("Coincident", 11, 2, 12, 1),
    Sketcher.Constraint("Tangent", 12, 2, 13, 2),
    Sketcher.Constraint("Tangent", 13, 1, 14, 1),
    Sketcher.Constraint("Tangent", 14, 2, 15, 2),
    Sketcher.Constraint("Tangent", 15, 1, 16, 1),
    Sketcher.Constraint("Coincident", 16, 2, 17, 1),
    Sketcher.Constraint("Coincident", 17, 2, 18, 1),
    Sketcher.Constraint("Coincident", 18, 2, 19, 1),
    Sketcher.Constraint("Coincident", 19, 2, 20, 1),
    Sketcher.Constraint("Coincident", 20, 2, 21, 1),
    Sketcher.Constraint("Tangent", 21, 2, 22, 1),
    Sketcher.Constraint("Tangent", 22, 2, 23, 1),
    Sketcher.Constraint("Coincident", 23, 2, 24, 1),
    Sketcher.Constraint("Coincident", 24, 2, 25, 1),
    Sketcher.Constraint("Tangent", 25, 2, 26, 1),
    Sketcher.Constraint("Tangent", 26, 2, 27, 1),
    Sketcher.Constraint("Coincident", 27, 2, 28, 1),
    Sketcher.Constraint("Coincident", 28, 2, 29, 1),
    Sketcher.Constraint("Coincident", 29, 2, 10, 1),
    Sketcher.Constraint("Vertical", 0),
    Sketcher.Constraint("Horizontal", 1),
    Sketcher.Constraint("Horizontal", 5),
    Sketcher.Constraint("Vertical", 6),
    Sketcher.Constraint("Horizontal", 8),
    Sketcher.Constraint("Vertical", 10),
    Sketcher.Constraint("Horizontal", 11),
    Sketcher.Constraint("Vertical", 12),
    Sketcher.Constraint("Horizontal", 14),
    Sketcher.Constraint("Vertical", 16),
    Sketcher.Constraint("Horizontal", 17),
    Sketcher.Constraint("Vertical", 18),
    Sketcher.Constraint("Horizontal", 19),
    Sketcher.Constraint("Vertical", 20),
    Sketcher.Constraint("Horizontal", 21),
    Sketcher.Constraint("Vertical", 23),
    Sketcher.Constraint("Horizontal", 24),
    Sketcher.Constraint("Vertical", 25),
    Sketcher.Constraint("Horizontal", 27),
    Sketcher.Constraint("Vertical", 28),
    Sketcher.Constraint("Horizontal", 29),
    Sketcher.Constraint("Equal", 2, 4),
    Sketcher.Constraint("Equal", 7, 9),
    Sketcher.Constraint("Equal", 9, 13),
    Sketcher.Constraint("Equal", 13, 15),
    Sketcher.Constraint("Equal", 22, 26),
    Sketcher.Constraint("Symmetric", 2, 3, 4, 3, -2),
    Sketcher.Constraint("Symmetric", 22, 3, 26, 3, -2),
    Sketcher.Constraint("Symmetric", 11, 2, 16, 2, -2),
    Sketcher.Constraint("Symmetric", 19, 2, 28, 2, -2),
    Sketcher.Constraint("Vertical", 9, 3, 13, 3),
    Sketcher.Constraint("Vertical", 7, 3, 15, 3),
    Sketcher.Constraint("Equal", 11, 17),
    Sketcher.Constraint("Radius", 7, 10.999999),
    Sketcher.Constraint("Radius", 22, 5.0),
    Sketcher.Constraint("Radius", 3, 32.5),
    Sketcher.Constraint("DistanceX", 8, 1, 8, 2, 296.0),
    Sketcher.Constraint("DistanceX", 11, 2, 11, 1, 4.0),
    Sketcher.Constraint("DistanceY", 0, 2, 0, 1, 216.0),
    Sketcher.Constraint("DistanceY", 12, 2, 12, 1, 201.0),
    Sketcher.Constraint("DistanceY", 20, 1, 20, 2, 3.0),
    Sketcher.Constraint("DistanceX", 19, 1, 19, 2, 4.5),
    Sketcher.Constraint("DistanceY", 4, 3, 7, 3, 195.999999),
    Sketcher.Constraint("DistanceY", 3, 3, 7, 3, 228.500002),
    Sketcher.Constraint("DistanceY", 3, 3, 13, 3, 282.299999),
    Sketcher.Constraint("DistanceY", 10, 2, 10, 1, 87.856),
    Sketcher.Constraint("DistanceY", 23, 1, 23, 2, 28.422),
    Sketcher.Constraint("DistanceY", 3, 3, -1, 1, 334.039),
    Sketcher.Constraint("DistanceX", 24, 1, 24, 2, 267.501592),
])
pad8 = body8.newObject("PartDesign::Pad", "Pad007")
pad8.Profile = sketch8
pad8.Length = 0.6
pad8.Reversed = True

doc.recompute()
